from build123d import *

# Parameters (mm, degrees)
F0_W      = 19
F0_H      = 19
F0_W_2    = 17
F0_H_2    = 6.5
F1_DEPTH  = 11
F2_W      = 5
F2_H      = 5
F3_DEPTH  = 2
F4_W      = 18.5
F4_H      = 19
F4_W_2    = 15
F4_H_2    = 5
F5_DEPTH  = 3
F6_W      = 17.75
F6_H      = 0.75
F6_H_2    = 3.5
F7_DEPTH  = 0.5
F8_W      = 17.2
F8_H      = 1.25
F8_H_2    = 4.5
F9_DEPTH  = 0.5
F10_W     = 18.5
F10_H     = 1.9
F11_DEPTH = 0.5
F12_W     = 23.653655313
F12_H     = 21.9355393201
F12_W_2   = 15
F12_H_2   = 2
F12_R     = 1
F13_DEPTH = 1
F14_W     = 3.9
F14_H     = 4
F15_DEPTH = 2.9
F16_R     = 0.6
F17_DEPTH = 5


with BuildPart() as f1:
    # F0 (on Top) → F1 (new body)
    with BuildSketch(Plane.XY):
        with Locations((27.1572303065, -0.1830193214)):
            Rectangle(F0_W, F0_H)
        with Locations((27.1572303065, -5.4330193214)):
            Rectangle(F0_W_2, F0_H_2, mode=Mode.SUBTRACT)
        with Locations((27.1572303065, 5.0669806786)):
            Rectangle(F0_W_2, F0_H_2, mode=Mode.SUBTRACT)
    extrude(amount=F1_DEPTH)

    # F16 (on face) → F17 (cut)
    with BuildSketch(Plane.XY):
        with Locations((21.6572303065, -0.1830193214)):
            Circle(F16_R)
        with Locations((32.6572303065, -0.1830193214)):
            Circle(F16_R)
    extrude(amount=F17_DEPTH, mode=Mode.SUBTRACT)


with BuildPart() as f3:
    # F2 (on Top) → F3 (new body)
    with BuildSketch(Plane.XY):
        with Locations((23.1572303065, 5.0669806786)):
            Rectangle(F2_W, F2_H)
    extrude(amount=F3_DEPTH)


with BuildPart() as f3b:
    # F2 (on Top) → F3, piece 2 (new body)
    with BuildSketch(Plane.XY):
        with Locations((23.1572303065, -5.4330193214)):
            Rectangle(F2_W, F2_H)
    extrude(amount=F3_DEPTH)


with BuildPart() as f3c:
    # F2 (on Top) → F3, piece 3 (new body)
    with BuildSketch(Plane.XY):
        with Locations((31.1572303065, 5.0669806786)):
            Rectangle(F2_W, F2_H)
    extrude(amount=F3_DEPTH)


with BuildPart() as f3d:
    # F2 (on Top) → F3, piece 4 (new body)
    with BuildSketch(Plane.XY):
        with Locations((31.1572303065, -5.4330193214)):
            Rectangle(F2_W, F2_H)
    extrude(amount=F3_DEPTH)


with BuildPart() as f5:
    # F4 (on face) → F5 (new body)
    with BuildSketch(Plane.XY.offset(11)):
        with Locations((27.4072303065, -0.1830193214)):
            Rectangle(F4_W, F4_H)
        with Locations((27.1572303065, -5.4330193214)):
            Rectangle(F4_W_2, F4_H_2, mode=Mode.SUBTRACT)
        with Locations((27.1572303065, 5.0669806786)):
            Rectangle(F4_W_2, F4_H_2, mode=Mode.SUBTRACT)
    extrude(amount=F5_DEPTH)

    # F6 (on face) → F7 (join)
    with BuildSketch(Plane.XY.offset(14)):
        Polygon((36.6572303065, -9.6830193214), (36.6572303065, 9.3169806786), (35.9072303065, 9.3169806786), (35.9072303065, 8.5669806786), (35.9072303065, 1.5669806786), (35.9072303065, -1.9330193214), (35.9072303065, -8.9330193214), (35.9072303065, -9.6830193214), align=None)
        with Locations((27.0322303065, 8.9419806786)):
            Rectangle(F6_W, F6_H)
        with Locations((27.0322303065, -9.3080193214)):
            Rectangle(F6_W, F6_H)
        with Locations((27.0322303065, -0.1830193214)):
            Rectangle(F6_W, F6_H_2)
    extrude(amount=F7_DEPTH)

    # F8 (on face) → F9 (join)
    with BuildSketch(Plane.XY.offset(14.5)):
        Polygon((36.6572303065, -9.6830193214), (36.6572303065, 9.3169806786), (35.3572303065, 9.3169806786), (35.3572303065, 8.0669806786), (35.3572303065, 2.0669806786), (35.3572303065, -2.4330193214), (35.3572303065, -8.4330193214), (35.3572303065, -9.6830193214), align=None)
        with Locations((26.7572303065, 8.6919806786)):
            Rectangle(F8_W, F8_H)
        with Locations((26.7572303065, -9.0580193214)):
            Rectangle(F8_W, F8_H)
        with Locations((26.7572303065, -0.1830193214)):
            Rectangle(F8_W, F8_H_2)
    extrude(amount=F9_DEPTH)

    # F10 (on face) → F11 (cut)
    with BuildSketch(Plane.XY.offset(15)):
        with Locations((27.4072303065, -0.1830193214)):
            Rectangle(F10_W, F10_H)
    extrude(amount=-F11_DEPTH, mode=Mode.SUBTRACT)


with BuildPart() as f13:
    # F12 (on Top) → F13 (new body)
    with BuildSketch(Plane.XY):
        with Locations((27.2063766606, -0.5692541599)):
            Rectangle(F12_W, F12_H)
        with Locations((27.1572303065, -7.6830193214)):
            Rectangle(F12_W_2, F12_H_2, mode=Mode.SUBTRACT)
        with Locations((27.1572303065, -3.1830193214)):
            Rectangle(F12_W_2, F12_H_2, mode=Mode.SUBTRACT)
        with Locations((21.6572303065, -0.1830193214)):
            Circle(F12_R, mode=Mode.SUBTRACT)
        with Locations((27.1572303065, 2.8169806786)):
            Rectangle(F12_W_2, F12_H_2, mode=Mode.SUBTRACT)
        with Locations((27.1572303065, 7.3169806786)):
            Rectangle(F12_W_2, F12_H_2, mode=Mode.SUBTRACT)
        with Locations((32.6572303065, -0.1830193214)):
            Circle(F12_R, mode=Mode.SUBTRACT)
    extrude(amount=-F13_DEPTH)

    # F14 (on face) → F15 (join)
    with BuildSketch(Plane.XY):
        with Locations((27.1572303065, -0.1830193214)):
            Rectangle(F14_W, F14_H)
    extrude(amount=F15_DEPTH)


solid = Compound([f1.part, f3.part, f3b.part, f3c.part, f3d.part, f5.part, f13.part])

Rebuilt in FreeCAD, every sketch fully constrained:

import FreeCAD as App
import Part
import Sketcher


def add_polygon(sketch, points):
    """Adds a closed chain of lines whose ends are joined by coincident constraints."""
    first, n = sketch.GeometryCount, len(points)
    for a, b in zip(points, points[1:] + points[:1]):
        sketch.addGeometry(Part.LineSegment(App.Vector(*a, 0), App.Vector(*b, 0)), False)
    for i in range(n):
        sketch.addConstraint(Sketcher.Constraint("Coincident", first + i, 2, first + (i + 1) % n, 1))

doc = App.newDocument("Part")
body = doc.addObject("PartDesign::Body", "Body")

# Sketch on XY plane
sketch1 = body.newObject("Sketcher::SketchObject", "Sketch")
sketch1.AttachmentSupport = (doc.getObject("XY_Plane"), [""])
sketch1.MapMode = "FlatFace"
add_polygon(sketch1, [(18, 9), (18, -10), (37, -10), (37, 9)])  # lines 0-3
add_polygon(sketch1, [(36, -9), (19, -9), (19, -2), (36, -2)])  # lines 4-7
add_polygon(sketch1, [(36, 2), (19, 2), (19, 8), (36, 8)])  # lines 8-11
sketch1.addConstraint(Sketcher.Constraint("Vertical", 0))
sketch1.addConstraint(Sketcher.Constraint("Horizontal", 1))
sketch1.addConstraint(Sketcher.Constraint("Vertical", 2))
sketch1.addConstraint(Sketcher.Constraint("Horizontal", 3))
sketch1.addConstraint(Sketcher.Constraint("Horizontal", 4))
sketch1.addConstraint(Sketcher.Constraint("Vertical", 5))
sketch1.addConstraint(Sketcher.Constraint("Horizontal", 6))
sketch1.addConstraint(Sketcher.Constraint("Vertical", 7))
sketch1.addConstraint(Sketcher.Constraint("Horizontal", 8))
sketch1.addConstraint(Sketcher.Constraint("Vertical", 9))
sketch1.addConstraint(Sketcher.Constraint("Horizontal", 10))
sketch1.addConstraint(Sketcher.Constraint("Vertical", 11))
sketch1.addConstraint(Sketcher.Constraint("Vertical", 5, 2, 8, 2))
sketch1.addConstraint(Sketcher.Constraint("Vertical", 7, 2, 10, 2))
sketch1.addConstraint(Sketcher.Constraint("Equal", 3, 0))
sketch1.addConstraint(Sketcher.Constraint("Equal", 7, 9))
sketch1.addConstraint(Sketcher.Constraint("DistanceX", 1, 1, 1, 2, 19.0))
sketch1.addConstraint(Sketcher.Constraint("DistanceX", 4, 2, 4, 1, 17.0))
sketch1.addConstraint(Sketcher.Constraint("DistanceY", 5, 1, 5, 2, 6.5))
sketch1.addConstraint(Sketcher.Constraint("DistanceX", 0, 2, 4, 2, 1.0))
sketch1.addConstraint(Sketcher.Constraint("DistanceY", 0, 2, 4, 2, 1.0))
sketch1.addConstraint(Sketcher.Constraint("DistanceY", 5, 2, 8, 2, 4.0))
sketch1.addConstraint(Sketcher.Constraint("DistanceX", -1, 1, 0, 2, 17.65723))
sketch1.addConstraint(Sketcher.Constraint("DistanceY", 0, 2, -1, 1, 9.683019))
pad1 = body.newObject("PartDesign::Pad", "Pad")
pad1.Profile = sketch1
pad1.Length = 11

# Sketch on XY plane
sketch2 = body.newObject("Sketcher::SketchObject", "Sketch001")
sketch2.AttachmentSupport = (doc.getObject("XY_Plane"), [""])
sketch2.MapMode = "FlatFace"
sketch2.addGeometry(Part.Circle(App.Vector(21.7, -0.2, 0), App.Vector(0, 0, 1), 0.6), False)
sketch2.addGeometry(Part.Circle(App.Vector(32.7, -0.2, 0), App.Vector(0, 0, 1), 0.6), False)
sketch2.addConstraint(Sketcher.Constraint("Equal", 0, 1))
sketch2.addConstraint(Sketcher.Constraint("Horizontal", 0, 3, 1, 3))
sketch2.addConstraint(Sketcher.Constraint("Diameter", 0, 1.2))
sketch2.addConstraint(Sketcher.Constraint("DistanceX", 0, 3, 1, 3, 11.0))
sketch2.addConstraint(Sketcher.Constraint("DistanceX", -1, 1, 0, 3, 21.65723))
sketch2.addConstraint(Sketcher.Constraint("DistanceY", 0, 3, -1, 1, 0.183019))
pocket1 = body.newObject("PartDesign::Pocket", "Pocket")
pocket1.Profile = sketch2
pocket1.Length = 5
pocket1.Reversed = True
body2 = doc.addObject("PartDesign::Body", "Body001")

# Sketch on XY plane
sketch3 = body2.newObject("Sketcher::SketchObject", "Sketch002")
sketch3.AttachmentSupport = (doc.getObject("XY_Plane001"), [""])
sketch3.MapMode = "FlatFace"
add_polygon(sketch3, [(21, 8), (21, 3), (26, 3), (26, 8)])  # lines 0-3
sketch3.addConstraint(Sketcher.Constraint("Vertical", 0))
sketch3.addConstraint(Sketcher.Constraint("Horizontal", 1))
sketch3.addConstraint(Sketcher.Constraint("Vertical", 2))
sketch3.addConstraint(Sketcher.Constraint("Horizontal", 3))
sketch3.addConstraint(Sketcher.Constraint("Equal", 3, 0))
sketch3.addConstraint(Sketcher.Constraint("DistanceX", 1, 1, 1, 2, 5.0))
sketch3.addConstraint(Sketcher.Constraint("DistanceX", -1, 1, 0, 2, 20.65723))
sketch3.addConstraint(Sketcher.Constraint("DistanceY", -1, 1, 0, 2, 2.566981))
pad2 = body2.newObject("PartDesign::Pad", "Pad001")
pad2.Profile = sketch3
pad2.Length = 2
body3 = doc.addObject("PartDesign::Body", "Body002")

# Sketch on XY plane
sketch4 = body3.newObject("Sketcher::SketchObject", "Sketch003")
sketch4.AttachmentSupport = (doc.getObject("XY_Plane002"), [""])
sketch4.MapMode = "FlatFace"
add_polygon(sketch4, [(21, -3), (21, -8), (26, -8), (26, -3)])  # lines 0-3
sketch4.addConstraint(Sketcher.Constraint("Vertical", 0))
sketch4.addConstraint(Sketcher.Constraint("Horizontal", 1))
sketch4.addConstraint(Sketcher.Constraint("Vertical", 2))
sketch4.addConstraint(Sketcher.Constraint("Horizontal", 3))
sketch4.addConstraint(Sketcher.Constraint("Equal", 3, 0))
sketch4.addConstraint(Sketcher.Constraint("DistanceX", 1, 1, 1, 2, 5.0))
sketch4.addConstraint(Sketcher.Constraint("DistanceX", -1, 1, 0, 2, 20.65723))
sketch4.addConstraint(Sketcher.Constraint("DistanceY", 0, 2, -1, 1, 7.933019))
pad3 = body3.newObject("PartDesign::Pad", "Pad002")
pad3.Profile = sketch4
pad3.Length = 2
body4 = doc.addObject("PartDesign::Body", "Body003")

# Sketch on XY plane
sketch5 = body4.newObject("Sketcher::SketchObject", "Sketch004")
sketch5.AttachmentSupport = (doc.getObject("XY_Plane003"), [""])
sketch5.MapMode = "FlatFace"
add_polygon(sketch5, [(28.7, 7.6), (28.7, 2.6), (33.7, 2.6), (33.7, 7.6)])  # lines 0-3
sketch5.addConstraint(Sketcher.Constraint("Vertical", 0))
sketch5.addConstraint(Sketcher.Constraint("Horizontal", 1))
sketch5.addConstraint(Sketcher.Constraint("Vertical", 2))
sketch5.addConstraint(Sketcher.Constraint("Horizontal", 3))
sketch5.addConstraint(Sketcher.Constraint("Equal", 3, 0))
sketch5.addConstraint(Sketcher.Constraint("DistanceX", 1, 1, 1, 2, 5.0))
sketch5.addConstraint(Sketcher.Constraint("DistanceX", -1, 1, 0, 2, 28.65723))
sketch5.addConstraint(Sketcher.Constraint("DistanceY", -1, 1, 0, 2, 2.566981))
pad4 = body4.newObject("PartDesign::Pad", "Pad003")
pad4.Profile = sketch5
pad4.Length = 2
body5 = doc.addObject("PartDesign::Body", "Body004")

# Sketch on XY plane
sketch6 = body5.newObject("Sketcher::SketchObject", "Sketch005")
sketch6.AttachmentSupport = (doc.getObject("XY_Plane004"), [""])
sketch6.MapMode = "FlatFace"
add_polygon(sketch6, [(28.7, -2.9), (28.7, -7.9), (33.7, -7.9), (33.7, -2.9)])  # lines 0-3
sketch6.addConstraint(Sketcher.Constraint("Vertical", 0))
sketch6.addConstraint(Sketcher.Constraint("Horizontal", 1))
sketch6.addConstraint(Sketcher.Constraint("Vertical", 2))
sketch6.addConstraint(Sketcher.Constraint("Horizontal", 3))
sketch6.addConstraint(Sketcher.Constraint("Equal", 3, 0))
sketch6.addConstraint(Sketcher.Constraint("DistanceX", 1, 1, 1, 2, 5.0))
sketch6.addConstraint(Sketcher.Constraint("DistanceX", -1, 1, 0, 2, 28.65723))
sketch6.addConstraint(Sketcher.Constraint("DistanceY", 0, 2, -1, 1, 7.933019))
pad5 = body5.newObject("PartDesign::Pad", "Pad004")
pad5.Profile = sketch6
pad5.Length = 2
body6 = doc.addObject("PartDesign::Body", "Body005")

# Sketch on XY plane
sketch7 = body6.newObject("Sketcher::SketchObject", "Sketch006")
sketch7.AttachmentSupport = (doc.getObject("XY_Plane005"), [""])
sketch7.MapMode = "FlatFace"
sketch7.AttachmentOffset = App.Placement(App.Vector(0, 0, 11), App.Rotation())
add_polygon(sketch7, [(18, 9), (18, -10), (37, -10), (37, 9)])  # lines 0-3
add_polygon(sketch7, [(35, -8), (20, -8), (20, -3), (35, -3)])  # lines 4-7
add_polygon(sketch7, [(35, 3), (20, 3), (20, 8), (35, 8)])  # lines 8-11
sketch7.addConstraint(Sketcher.Constraint("Vertical", 0))
sketch7.addConstraint(Sketcher.Constraint("Horizontal", 1))
sketch7.addConstraint(Sketcher.Constraint("Vertical", 2))
sketch7.addConstraint(Sketcher.Constraint("Horizontal", 3))
sketch7.addConstraint(Sketcher.Constraint("Horizontal", 4))
sketch7.addConstraint(Sketcher.Constraint("Vertical", 5))
sketch7.addConstraint(Sketcher.Constraint("Horizontal", 6))
sketch7.addConstraint(Sketcher.Constraint("Vertical", 7))
sketch7.addConstraint(Sketcher.Constraint("Horizontal", 8))
sketch7.addConstraint(Sketcher.Constraint("Vertical", 9))
sketch7.addConstraint(Sketcher.Constraint("Horizontal", 10))
sketch7.addConstraint(Sketcher.Constraint("Vertical", 11))
sketch7.addConstraint(Sketcher.Constraint("Vertical", 5, 2, 8, 2))
sketch7.addConstraint(Sketcher.Constraint("Vertical", 7, 2, 10, 2))
sketch7.addConstraint(Sketcher.Constraint("Equal", 7, 9))
sketch7.addConstraint(Sketcher.Constraint("DistanceX", 4, 2, 4, 1, 15.0))
sketch7.addConstraint(Sketcher.Constraint("DistanceY", 0, 2, 0, 1, 19.0))
sketch7.addConstraint(Sketcher.Constraint("DistanceY", 5, 1, 5, 2, 5.0))
sketch7.addConstraint(Sketcher.Constraint("DistanceX", 1, 1, 1, 2, 18.5))
sketch7.addConstraint(Sketcher.Constraint("DistanceX", 4, 2, 1, 2, 17.0))
sketch7.addConstraint(Sketcher.Constraint("DistanceY", 5, 2, 8, 2, 5.5))
sketch7.addConstraint(Sketcher.Constraint("DistanceY", 0, 2, 4, 2, 1.75))
sketch7.addConstraint(Sketcher.Constraint("DistanceX", -1, 1, 0, 2, 18.15723))
sketch7.addConstraint(Sketcher.Constraint("DistanceY", 0, 2, -1, 1, 9.683019))
pad6 = body6.newObject("PartDesign::Pad", "Pad005")
pad6.Profile = sketch7
pad6.Length = 3

# Sketch on XY plane
sketch8 = body6.newObject("Sketcher::SketchObject", "Sketch007")
sketch8.AttachmentSupport = (doc.getObject("XY_Plane005"), [""])
sketch8.MapMode = "FlatFace"
sketch8.AttachmentOffset = App.Placement(App.Vector(0, 0, 14), App.Rotation())
add_polygon(sketch8, [(36.7, -9.7), (36.7, 9.3), (18.2, 9.3), (18.2, 8.6), (35.9, 8.6), (35.9, 1.6), (18.2, 1.6), (18.2, -1.9), (35.9, -1.9), (35.9, -8.9), (18.2, -8.9), (18.2, -9.7)])  # lines 0-11
sketch8.addConstraint(Sketcher.Constraint("Vertical", 0))
sketch8.addConstraint(Sketcher.Constraint("Horizontal", 1))
sketch8.addConstraint(Sketcher.Constraint("Vertical", 2))
sketch8.addConstraint(Sketcher.Constraint("Horizontal", 3))
sketch8.addConstraint(Sketcher.Constraint("Vertical", 4))
sketch8.addConstraint(Sketcher.Constraint("Horizontal", 5))
sketch8.addConstraint(Sketcher.Constraint("Vertical", 6))
sketch8.addConstraint(Sketcher.Constraint("Horizontal", 7))
sketch8.addConstraint(Sketcher.Constraint("Vertical", 8))
sketch8.addConstraint(Sketcher.Constraint("Horizontal", 9))
sketch8.addConstraint(Sketcher.Constraint("Vertical", 10))
sketch8.addConstraint(Sketcher.Constraint("Horizontal", 11))
sketch8.addConstraint(Sketcher.Constraint("Vertical", 2, 2, 5, 2))
sketch8.addConstraint(Sketcher.Constraint("Vertical", 4, 2, 7, 2))
sketch8.addConstraint(Sketcher.Constraint("Vertical", 6, 2, 9, 2))
sketch8.addConstraint(Sketcher.Constraint("Equal", 4, 8))
sketch8.addConstraint(Sketcher.Constraint("Equal", 2, 10))
sketch8.addConstraint(Sketcher.Constraint("DistanceY", 0, 1, 0, 2, 19.0))
sketch8.addConstraint(Sketcher.Constraint("DistanceY", 4, 2, 4, 1, 7.0))
sketch8.addConstraint(Sketcher.Constraint("DistanceX", 1, 2, 1, 1, 18.5))
sketch8.addConstraint(Sketcher.Constraint("DistanceY", 6, 2, 6, 1, 3.5))
sketch8.addConstraint(Sketcher.Constraint("DistanceX", 3, 1, 3, 2, 17.75))
sketch8.addConstraint(Sketcher.Constraint("DistanceX", -1, 1, 0, 2, 36.65723))
sketch8.addConstraint(Sketcher.Constraint("DistanceY", -1, 1, 0, 2, 9.316981))
pad7 = body6.newObject("PartDesign::Pad", "Pad006")
pad7.Profile = sketch8
pad7.Length = 0.5

# Sketch on XY plane
sketch9 = body6.newObject("Sketcher::SketchObject", "Sketch008")
sketch9.AttachmentSupport = (doc.getObject("XY_Plane005"), [""])
sketch9.MapMode = "FlatFace"
sketch9.AttachmentOffset = App.Placement(App.Vector(0, 0, 14.5), App.Rotation())
add_polygon(sketch9, [(36.7, -9.7), (36.7, 9.3), (18.2, 9.3), (18.2, 8.1), (35.4, 8.1), (35.4, 2.1), (18.2, 2.1), (18.2, -2.4), (35.4, -2.4), (35.4, -8.4), (18.2, -8.4), (18.2, -9.7)])  # lines 0-11
sketch9.addConstraint(Sketcher.Constraint("Vertical", 0))
sketch9.addConstraint(Sketcher.Constraint("Horizontal", 1))
sketch9.addConstraint(Sketcher.Constraint("Vertical", 2))
sketch9.addConstraint(Sketcher.Constraint("Horizontal", 3))
sketch9.addConstraint(Sketcher.Constraint("Vertical", 4))
sketch9.addConstraint(Sketcher.Constraint("Horizontal", 5))
sketch9.addConstraint(Sketcher.Constraint("Vertical", 6))
sketch9.addConstraint(Sketcher.Constraint("Horizontal", 7))
sketch9.addConstraint(Sketcher.Constraint("Vertical", 8))
sketch9.addConstraint(Sketcher.Constraint("Horizontal", 9))
sketch9.addConstraint(Sketcher.Constraint("Vertical", 10))
sketch9.addConstraint(Sketcher.Constraint("Horizontal", 11))
sketch9.addConstraint(Sketcher.Constraint("Vertical", 2, 2, 5, 2))
sketch9.addConstraint(Sketcher.Constraint("Vertical", 4, 2, 7, 2))
sketch9.addConstraint(Sketcher.Constraint("Vertical", 6, 2, 9, 2))
sketch9.addConstraint(Sketcher.Constraint("Equal", 4, 8))
sketch9.addConstraint(Sketcher.Constraint("Equal", 2, 10))
sketch9.addConstraint(Sketcher.Constraint("DistanceY", 0, 1, 0, 2, 19.0))
sketch9.addConstraint(Sketcher.Constraint("DistanceY", 4, 2, 4, 1, 6.0))
sketch9.addConstraint(Sketcher.Constraint("DistanceX", 1, 2, 1, 1, 18.5))
sketch9.addConstraint(Sketcher.Constraint("DistanceX", 3, 1, 3, 2, 17.2))
sketch9.addConstraint(Sketcher.Constraint("DistanceY", 6, 2, 6, 1, 4.5))
sketch9.addConstraint(Sketcher.Constraint("DistanceX", -1, 1, 0, 2, 36.65723))
sketch9.addConstraint(Sketcher.Constraint("DistanceY", -1, 1, 0, 2, 9.316981))
pad8 = body6.newObject("PartDesign::Pad", "Pad007")
pad8.Profile = sketch9
pad8.Length = 0.5

# Sketch on XY plane
sketch10 = body6.newObject("Sketcher::SketchObject", "Sketch009")
sketch10.AttachmentSupport = (doc.getObject("XY_Plane005"), [""])
sketch10.MapMode = "FlatFace"
sketch10.AttachmentOffset = App.Placement(App.Vector(0, 0, 15), App.Rotation())
add_polygon(sketch10, [(18.2, 0.8), (18.2, -1.1), (36.7, -1.1), (36.7, 0.8)])  # lines 0-3
sketch10.addConstraint(Sketcher.Constraint("Vertical", 0))
sketch10.addConstraint(Sketcher.Constraint("Horizontal", 1))
sketch10.addConstraint(Sketcher.Constraint("Vertical", 2))
sketch10.addConstraint(Sketcher.Constraint("Horizontal", 3))
sketch10.addConstraint(Sketcher.Constraint("DistanceX", 1, 1, 1, 2, 18.5))
sketch10.addConstraint(Sketcher.Constraint("DistanceY", 0, 2, 0, 1, 1.9))
sketch10.addConstraint(Sketcher.Constraint("DistanceX", -1, 1, 0, 2, 18.15723))
sketch10.addConstraint(Sketcher.Constraint("DistanceY", 0, 2, -1, 1, 1.133019))
pocket2 = body6.newObject("PartDesign::Pocket", "Pocket001")
pocket2.Profile = sketch10
pocket2.Length = 0.5
body7 = doc.addObject("PartDesign::Body", "Body006")

# Sketch on XY plane
sketch11 = body7.newObject("Sketcher::SketchObject", "Sketch010")
sketch11.AttachmentSupport = (doc.getObject("XY_Plane006"), [""])
sketch11.MapMode = "FlatFace"
add_polygon(sketch11, [(15.4, 10.4), (15.4, -11.5), (39, -11.5), (39, 10.4)])  # lines 0-3
add_polygon(sketch11, [(34.7, -8.7), (19.7, -8.7), (19.7, -6.7), (34.7, -6.7)])  # lines 4-7
add_polygon(sketch11, [(34.7, -4.2), (19.7, -4.2), (19.7, -2.2), (34.7, -2.2)])  # lines 8-11
sketch11.addGeometry(Part.Circle(App.Vector(21.7, -0.2, 0), App.Vector(0, 0, 1), 1), False)  # 12
add_polygon(sketch11, [(34.7, 1.8), (19.7, 1.8), (19.7, 3.8), (34.7, 3.8)])  # lines 13-16
sketch11.addGeometry(Part.Circle(App.Vector(32.7, -0.2, 0), App.Vector(0, 0, 1), 1), False)  # 17
add_polygon(sketch11, [(34.7, 6.3), (19.7, 6.3), (19.7, 8.3), (34.7, 8.3)])  # lines 18-21
sketch11.addConstraint(Sketcher.Constraint("Vertical", 0))
sketch11.addConstraint(Sketcher.Constraint("Horizontal", 1))
sketch11.addConstraint(Sketcher.Constraint("Vertical", 2))
sketch11.addConstraint(Sketcher.Constraint("Horizontal", 3))
sketch11.addConstraint(Sketcher.Constraint("Horizontal", 4))
sketch11.addConstraint(Sketcher.Constraint("Vertical", 5))
sketch11.addConstraint(Sketcher.Constraint("Horizontal", 6))
sketch11.addConstraint(Sketcher.Constraint("Vertical", 7))
sketch11.addConstraint(Sketcher.Constraint("Horizontal", 8))
sketch11.addConstraint(Sketcher.Constraint("Vertical", 9))
sketch11.addConstraint(Sketcher.Constraint("Horizontal", 10))
sketch11.addConstraint(Sketcher.Constraint("Vertical", 11))
sketch11.addConstraint(Sketcher.Constraint("Horizontal", 13))
sketch11.addConstraint(Sketcher.Constraint("Vertical", 14))
sketch11.addConstraint(Sketcher.Constraint("Horizontal", 15))
sketch11.addConstraint(Sketcher.Constraint("Vertical", 16))
sketch11.addConstraint(Sketcher.Constraint("Horizontal", 18))
sketch11.addConstraint(Sketcher.Constraint("Vertical", 19))
sketch11.addConstraint(Sketcher.Constraint("Horizontal", 20))
sketch11.addConstraint(Sketcher.Constraint("Vertical", 21))
sketch11.addConstraint(Sketcher.Constraint("Equal", 12, 17))
sketch11.addConstraint(Sketcher.Constraint("Horizontal", 12, 3, 17, 3))
sketch11.addConstraint(Sketcher.Constraint("Vertical", 5, 2, 8, 2))
sketch11.addConstraint(Sketcher.Constraint("Vertical", 7, 2, 10, 2))
sketch11.addConstraint(Sketcher.Constraint("Vertical", 9, 2, 13, 2))
sketch11.addConstraint(Sketcher.Constraint("Vertical", 11, 2, 15, 2))
sketch11.addConstraint(Sketcher.Constraint("Vertical", 14, 2, 18, 2))
sketch11.addConstraint(Sketcher.Constraint("Vertical", 16, 2, 20, 2))
sketch11.addConstraint(Sketcher.Constraint("Equal", 7, 9))
sketch11.addConstraint(Sketcher.Constraint("Equal", 11, 14))
sketch11.addConstraint(Sketcher.Constraint("Equal", 16, 19))
sketch11.addConstraint(Sketcher.Constraint("Diameter", 12, 2.0))
sketch11.addConstraint(Sketcher.Constraint("DistanceX", 4, 2, 4, 1, 15.0))
sketch11.addConstraint(Sketcher.Constraint("DistanceY", 5, 1, 5, 2, 2.0))
sketch11.addConstraint(Sketcher.Constraint("DistanceX", 12, 3, 17, 3, 11.0))
sketch11.addConstraint(Sketcher.Constraint("DistanceX", 4, 2, 12, 3, 2.0))
sketch11.addConstraint(Sketcher.Constraint("DistanceY", 8, 2, 12, 3, 4.0))
sketch11.addConstraint(Sketcher.Constraint("DistanceY", 12, 3, 13, 2, 2.0))
sketch11.addConstraint(Sketcher.Constraint("DistanceY", 4, 2, 12, 3, 8.5))
sketch11.addConstraint(Sketcher.Constraint("DistanceY", 14, 2, 18, 2, 2.5))
sketch11.addConstraint(Sketcher.Constraint("DistanceY", 0, 2, 0, 1, 21.935539))
sketch11.addConstraint(Sketcher.Constraint("DistanceX", 1, 1, 1, 2, 23.653655))
sketch11.addConstraint(Sketcher.Constraint("DistanceX", -1, 1, 12, 3, 21.65723))
sketch11.addConstraint(Sketcher.Constraint("DistanceY", 12, 3, -1, 1, 0.183019))
sketch11.addConstraint(Sketcher.Constraint("DistanceX", -1, 1, 0, 2, 15.379549))
sketch11.addConstraint(Sketcher.Constraint("DistanceY", 0, 2, -1, 1, 11.537024))
pad9 = body7.newObject("PartDesign::Pad", "Pad008")
pad9.Profile = sketch11
pad9.Length = 1
pad9.Reversed = True

# Sketch on XY plane
sketch12 = body7.newObject("Sketcher::SketchObject", "Sketch011")
sketch12.AttachmentSupport = (doc.getObject("XY_Plane006"), [""])
sketch12.MapMode = "FlatFace"
add_polygon(sketch12, [(25.2, 1.8), (25.2, -2.2), (29.1, -2.2), (29.1, 1.8)])  # lines 0-3
sketch12.addConstraint(Sketcher.Constraint("Vertical", 0))
sketch12.addConstraint(Sketcher.Constraint("Horizontal", 1))
sketch12.addConstraint(Sketcher.Constraint("Vertical", 2))
sketch12.addConstraint(Sketcher.Constraint("Horizontal", 3))
sketch12.addConstraint(Sketcher.Constraint("DistanceY", 0, 2, 0, 1, 4.0))
sketch12.addConstraint(Sketcher.Constraint("DistanceX", 1, 1, 1, 2, 3.9))
sketch12.addConstraint(Sketcher.Constraint("DistanceX", -1, 1, 0, 2, 25.20723))
sketch12.addConstraint(Sketcher.Constraint("DistanceY", 0, 2, -1, 1, 2.183019))
pad10 = body7.newObject("PartDesign::Pad", "Pad009")
pad10.Profile = sketch12
pad10.Length = 2.9

doc.recompute()
